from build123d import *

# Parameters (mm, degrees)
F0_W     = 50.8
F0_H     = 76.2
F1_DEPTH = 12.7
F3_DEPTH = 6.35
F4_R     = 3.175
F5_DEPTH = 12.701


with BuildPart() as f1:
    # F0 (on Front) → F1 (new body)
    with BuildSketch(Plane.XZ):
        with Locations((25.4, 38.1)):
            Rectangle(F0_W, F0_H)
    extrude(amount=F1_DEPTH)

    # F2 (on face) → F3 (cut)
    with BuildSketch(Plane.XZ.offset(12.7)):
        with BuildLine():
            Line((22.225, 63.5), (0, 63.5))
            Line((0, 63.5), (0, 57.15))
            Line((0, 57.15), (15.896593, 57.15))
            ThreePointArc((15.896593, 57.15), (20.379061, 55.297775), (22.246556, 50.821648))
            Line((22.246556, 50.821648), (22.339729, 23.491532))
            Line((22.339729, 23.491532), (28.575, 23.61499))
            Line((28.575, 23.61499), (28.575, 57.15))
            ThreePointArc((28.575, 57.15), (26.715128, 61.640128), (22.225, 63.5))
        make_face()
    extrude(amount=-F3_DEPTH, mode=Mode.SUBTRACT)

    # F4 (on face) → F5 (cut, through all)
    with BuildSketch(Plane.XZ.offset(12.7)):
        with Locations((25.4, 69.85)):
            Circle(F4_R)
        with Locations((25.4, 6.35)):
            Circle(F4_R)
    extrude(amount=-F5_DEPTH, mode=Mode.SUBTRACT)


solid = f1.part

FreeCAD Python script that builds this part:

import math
import FreeCAD as App
import Part
import Sketcher
Q = App.Units.Quantity

doc = App.newDocument("Part")
params = doc.addObject("Spreadsheet::Sheet", "Params")
for row, (alias, value) in enumerate([
    ("sketch1_width", "2 in"),
    ("sketch1_height", "3 in"),
    ("pad1_length", "0.5 in"),
    ("sketch2_radius", "0.25 in"),
    ("sketch2_width", "0.875 in"),
    ("pocket1_length", "0.25 in"),
    ("sketch3_diameter", "0.25 in"),
], start=1):
    params.set(f"A{row}", alias)
    params.set(f"B{row}", "=" + value)
    params.setAlias(f"B{row}", alias)

body = doc.addObject("PartDesign::Body", "Body")

# Sketch on XZ plane
sketch1 = body.newObject("Sketcher::SketchObject", "Sketch")
sketch1.AttachmentSupport = (doc.getObject("XZ_Plane"), [""])
sketch1.MapMode = "FlatFace"
sketch1.addGeometry(Part.LineSegment(App.Vector(0, 76, 0), App.Vector(0, 0, 0)), False)
sketch1.addGeometry(Part.LineSegment(App.Vector(0, 0, 0), App.Vector(51, 0, 0)), False)
sketch1.addGeometry(Part.LineSegment(App.Vector(51, 0, 0), App.Vector(51, 76, 0)), False)
sketch1.addGeometry(Part.LineSegment(App.Vector(51, 76, 0), App.Vector(0, 76, 0)), False)
sketch1.addConstraint(Sketcher.Constraint("Coincident", 0, 2, 1, 1))
sketch1.addConstraint(Sketcher.Constraint("Coincident", 1, 2, 2, 1))
sketch1.addConstraint(Sketcher.Constraint("Coincident", 2, 2, 3, 1))
sketch1.addConstraint(Sketcher.Constraint("Coincident", 3, 2, 0, 1))
sketch1.addConstraint(Sketcher.Constraint("Vertical", 0))
sketch1.addConstraint(Sketcher.Constraint("Horizontal", 1))
sketch1.addConstraint(Sketcher.Constraint("Vertical", 2))
sketch1.addConstraint(Sketcher.Constraint("Horizontal", 3))
sketch1.addConstraint(Sketcher.Constraint("Coincident", 0, 2, -1, 1))
sketch1.addConstraint(Sketcher.Constraint("DistanceX", 1, 1, 1, 2, Q("2 in")))
sketch1.addConstraint(Sketcher.Constraint("DistanceY", 0, 2, 0, 1, Q("3 in")))
sketch1.setExpression("Constraints[9]", "Params.sketch1_width")
sketch1.setExpression("Constraints[10]", "Params.sketch1_height")
pad1 = body.newObject("PartDesign::Pad", "Pad")
pad1.Profile = sketch1
pad1.setExpression("Length", "Params.pad1_length")

# Sketch on XZ plane
sketch2 = body.newObject("Sketcher::SketchObject", "Sketch001")
sketch2.AttachmentSupport = (doc.getObject("XZ_Plane"), [""])
sketch2.MapMode = "FlatFace"
sketch2.AttachmentOffset = App.Placement(App.Vector(0, 0, 0.5 * 25.4), App.Rotation())
sketch2.addGeometry(Part.LineSegment(App.Vector(22, 64, 0), App.Vector(0, 64, 0)), False)
sketch2.addGeometry(Part.LineSegment(App.Vector(0, 64, 0), App.Vector(0, 57, 0)), False)
sketch2.addGeometry(Part.LineSegment(App.Vector(0, 57, 0), App.Vector(16, 57, 0)), False)
sketch2.addGeometry(Part.ArcOfCircle(Part.Circle(App.Vector(16, 51, 0), App.Vector(0, 0, 1), 6), math.radians(0), math.radians(90)), False)
sketch2.addGeometry(Part.LineSegment(App.Vector(22, 51, 0), App.Vector(22, 23, 0)), False)
sketch2.addGeometry(Part.LineSegment(App.Vector(22, 23, 0), App.Vector(29, 24, 0)), False)
sketch2.addGeometry(Part.LineSegment(App.Vector(29, 24, 0), App.Vector(29, 57, 0)), False)
sketch2.addGeometry(Part.ArcOfCircle(Part.Circle(App.Vector(22, 57, 0), App.Vector(0, 0, 1), 6), math.radians(0), math.radians(90)), False)
sketch2.addConstraint(Sketcher.Constraint("Coincident", 0, 2, 1, 1))
sketch2.addConstraint(Sketcher.Constraint("Coincident", 1, 2, 2, 1))
sketch2.addConstraint(Sketcher.Constraint("Tangent", 2, 2, 3, 2))
sketch2.addConstraint(Sketcher.Constraint("Tangent", 3, 1, 4, 1))
sketch2.addConstraint(Sketcher.Constraint("Coincident", 4, 2, 5, 1))
sketch2.addConstraint(Sketcher.Constraint("Coincident", 5, 2, 6, 1))
sketch2.addConstraint(Sketcher.Constraint("Tangent", 6, 2, 7, 1))
sketch2.addConstraint(Sketcher.Constraint("Tangent", 7, 2, 0, 1))
sketch2.addConstraint(Sketcher.Constraint("Horizontal", 0))
sketch2.addConstraint(Sketcher.Constraint("Vertical", 1))
sketch2.addConstraint(Sketcher.Constraint("Horizontal", 2))
sketch2.addConstraint(Sketcher.Constraint("Vertical", 6))
sketch2.addConstraint(Sketcher.Constraint("Equal", 3, 7))
sketch2.addConstraint(Sketcher.Constraint("PointOnObject", 0, 2, -2))
sketch2.addConstraint(Sketcher.Constraint("Horizontal", 7, 3, 1, 2))
sketch2.addConstraint(Sketcher.Constraint("Radius", 3, Q("0.25 in")))
sketch2.addConstraint(Sketcher.Constraint("DistanceY", -1, 1, 3, 3, Q("2 in")))
sketch2.addConstraint(Sketcher.Constraint("DistanceX", 0, 2, 0, 1, Q("0.875 in")))
sketch2.addConstraint(Sketcher.Constraint("DistanceY", 6, 1, 6, 2, 33.53501))
sketch2.addConstraint(Sketcher.Constraint("DistanceX", 2, 1, 2, 2, 15.896593))
sketch2.addConstraint(Sketcher.Constraint("DistanceX", -1, 1, 4, 2, 22.339729))
sketch2.addConstraint(Sketcher.Constraint("DistanceY", -1, 1, 4, 2, 23.491532))
sketch2.setExpression("Constraints[15]", "Params.sketch2_radius")
sketch2.setExpression("Constraints[17]", "Params.sketch2_width")
pocket1 = body.newObject("PartDesign::Pocket", "Pocket")
pocket1.Profile = sketch2
pocket1.setExpression("Length", "Params.pocket1_length")

# Sketch on XZ plane
sketch3 = body.newObject("Sketcher::SketchObject", "Sketch002")
sketch3.AttachmentSupport = (doc.getObject("XZ_Plane"), [""])
sketch3.MapMode = "FlatFace"
sketch3.AttachmentOffset = App.Placement(App.Vector(0, 0, 0.5 * 25.4), App.Rotation())
sketch3.addGeometry(Part.Circle(App.Vector(25.4, 69.8, 0), App.Vector(0, 0, 1), 3.2), False)
sketch3.addGeometry(Part.Circle(App.Vector(25.4, 6.3, 0), App.Vector(0, 0, 1), 3.2), False)
sketch3.addConstraint(Sketcher.Constraint("Equal", 0, 1))
sketch3.addConstraint(Sketcher.Constraint("Vertical", 0, 3, 1, 3))
sketch3.addConstraint(Sketcher.Constraint("Diameter", 0, Q("0.25 in")))
sketch3.addConstraint(Sketcher.Constraint("DistanceX", -1, 1, 0, 3, Q("1 in")))
sketch3.addConstraint(Sketcher.Constraint("DistanceY", 1, 3, 0, 3, Q("2.5 in")))
sketch3.addConstraint(Sketcher.Constraint("DistanceY", -1, 1, 0, 3, Q("2.75 in")))
sketch3.setExpression("Constraints[2]", "Params.sketch3_diameter")
pocket2 = body.newObject("PartDesign::Pocket", "Pocket001")
pocket2.Profile = sketch3
pocket2.Type = "ThroughAll"

doc.recompute()
